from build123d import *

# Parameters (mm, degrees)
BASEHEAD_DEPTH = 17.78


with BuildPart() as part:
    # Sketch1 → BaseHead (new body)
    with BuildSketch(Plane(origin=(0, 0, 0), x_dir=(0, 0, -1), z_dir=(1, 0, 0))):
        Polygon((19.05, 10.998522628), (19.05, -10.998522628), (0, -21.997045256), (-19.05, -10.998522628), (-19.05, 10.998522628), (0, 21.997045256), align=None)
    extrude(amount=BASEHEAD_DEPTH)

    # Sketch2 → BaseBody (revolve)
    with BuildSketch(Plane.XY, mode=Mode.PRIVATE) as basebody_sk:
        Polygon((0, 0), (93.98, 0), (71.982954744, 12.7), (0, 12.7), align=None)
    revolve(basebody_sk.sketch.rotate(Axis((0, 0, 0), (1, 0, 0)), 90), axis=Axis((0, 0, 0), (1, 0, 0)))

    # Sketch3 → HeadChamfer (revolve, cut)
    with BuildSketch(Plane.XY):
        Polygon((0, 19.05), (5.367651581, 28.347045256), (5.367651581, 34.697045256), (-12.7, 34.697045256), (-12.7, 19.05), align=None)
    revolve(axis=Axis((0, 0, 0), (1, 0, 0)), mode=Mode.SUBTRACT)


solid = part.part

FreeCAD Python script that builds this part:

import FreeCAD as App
import Part
import Sketcher
Q = App.Units.Quantity


def add_polygon(sketch, points):
    """Adds a closed chain of lines whose ends are joined by coincident constraints."""
    first, n = sketch.GeometryCount, len(points)
    for a, b in zip(points, points[1:] + points[:1]):
        sketch.addGeometry(Part.LineSegment(App.Vector(*a, 0), App.Vector(*b, 0)), False)
    for i in range(n):
        sketch.addConstraint(Sketcher.Constraint("Coincident", first + i, 2, first + (i + 1) % n, 1))

doc = App.newDocument("Part")
body = doc.addObject("PartDesign::Body", "Body")

sketch1 = body.newObject("Sketcher::SketchObject", "Sketch")
sketch1.AttachmentSupport = (doc.getObject("YZ_Plane"), [""])
sketch1.MapMode = "FlatFace"
add_polygon(sketch1, [(-11, -19), (11, -19), (22, 0), (11, 19), (-11, 19), (-22, 0)])
sketch1.addConstraint([
    Sketcher.Constraint("Horizontal", 0),
    Sketcher.Constraint("Horizontal", 3),
    Sketcher.Constraint("Symmetric", 0, 2, 3, 2, -1, 1),
    Sketcher.Constraint("Symmetric", 1, 2, 4, 2, -1, 1),
    Sketcher.Constraint("PointOnObject", 1, 2, -1),
    Sketcher.Constraint("Parallel", 2, 5),
    Sketcher.Constraint("Vertical", 0, 2, 2, 2),
    Sketcher.Constraint("Angle", 1, Q("60 deg")),
    Sketcher.Constraint("DistanceY", 0, 2, 2, 2, Q("1.5 in")),
    Sketcher.Constraint("DistanceX", 0, 1, 0, 2, Q("21.997045 mm")),
])
pad1 = body.newObject("PartDesign::Pad", "Pad")
pad1.Profile = sketch1
pad1.Length = Q("0.7 in")

sketch2 = body.newObject("Sketcher::SketchObject", "Sketch001")
sketch2.AttachmentSupport = (doc.getObject("XY_Plane"), [""])
sketch2.MapMode = "FlatFace"
add_polygon(sketch2, [(0, 0), (94, 0), (72, 13), (0, 13)])
sketch2.addConstraint([
    Sketcher.Constraint("Horizontal", 0),
    Sketcher.Constraint("Horizontal", 2),
    Sketcher.Constraint("Vertical", 3),
    Sketcher.Constraint("Coincident", 3, 2, -1, 1),
    Sketcher.Constraint("Distance", 1, Q("1 in")),
    Sketcher.Constraint("DistanceX", 0, 1, 0, 2, Q("3.7 in")),
    Sketcher.Constraint("DistanceY", 3, 2, 3, 1, Q("0.5 in")),
])
revolution = body.newObject("PartDesign::Revolution", "Revolution")
revolution.Profile = sketch2
revolution.ReferenceAxis = (sketch2, ["H_Axis"])
revolution.Angle = 360

sketch3 = body.newObject("Sketcher::SketchObject", "Sketch002")
sketch3.AttachmentSupport = (doc.getObject("XY_Plane"), [""])
sketch3.MapMode = "FlatFace"
add_polygon(sketch3, [(0, 19), (5, 28), (5, 35), (-13, 35), (-13, 19)])
sketch3.addConstraint([
    Sketcher.Constraint("Vertical", 1),
    Sketcher.Constraint("Horizontal", 2),
    Sketcher.Constraint("Vertical", 3),
    Sketcher.Constraint("Horizontal", 4),
    Sketcher.Constraint("PointOnObject", 4, 2, -2),
    Sketcher.Constraint("DistanceX", 4, 1, 4, 2, Q("0.5 in")),
    Sketcher.Constraint("Angle", 0, Q("60 deg")),
    Sketcher.Constraint("DistanceY", 1, 1, 1, 2, Q("0.25 in")),
    Sketcher.Constraint("DistanceY", -1, 1, 3, 2, Q("0.75 in")),
    Sketcher.Constraint("DistanceX", 2, 2, 2, 1, Q("18.067652 mm")),
])
groove = body.newObject("PartDesign::Groove", "Groove")
groove.Profile = sketch3
groove.ReferenceAxis = (sketch3, ["H_Axis"])
groove.Angle = 360

doc.recompute()
